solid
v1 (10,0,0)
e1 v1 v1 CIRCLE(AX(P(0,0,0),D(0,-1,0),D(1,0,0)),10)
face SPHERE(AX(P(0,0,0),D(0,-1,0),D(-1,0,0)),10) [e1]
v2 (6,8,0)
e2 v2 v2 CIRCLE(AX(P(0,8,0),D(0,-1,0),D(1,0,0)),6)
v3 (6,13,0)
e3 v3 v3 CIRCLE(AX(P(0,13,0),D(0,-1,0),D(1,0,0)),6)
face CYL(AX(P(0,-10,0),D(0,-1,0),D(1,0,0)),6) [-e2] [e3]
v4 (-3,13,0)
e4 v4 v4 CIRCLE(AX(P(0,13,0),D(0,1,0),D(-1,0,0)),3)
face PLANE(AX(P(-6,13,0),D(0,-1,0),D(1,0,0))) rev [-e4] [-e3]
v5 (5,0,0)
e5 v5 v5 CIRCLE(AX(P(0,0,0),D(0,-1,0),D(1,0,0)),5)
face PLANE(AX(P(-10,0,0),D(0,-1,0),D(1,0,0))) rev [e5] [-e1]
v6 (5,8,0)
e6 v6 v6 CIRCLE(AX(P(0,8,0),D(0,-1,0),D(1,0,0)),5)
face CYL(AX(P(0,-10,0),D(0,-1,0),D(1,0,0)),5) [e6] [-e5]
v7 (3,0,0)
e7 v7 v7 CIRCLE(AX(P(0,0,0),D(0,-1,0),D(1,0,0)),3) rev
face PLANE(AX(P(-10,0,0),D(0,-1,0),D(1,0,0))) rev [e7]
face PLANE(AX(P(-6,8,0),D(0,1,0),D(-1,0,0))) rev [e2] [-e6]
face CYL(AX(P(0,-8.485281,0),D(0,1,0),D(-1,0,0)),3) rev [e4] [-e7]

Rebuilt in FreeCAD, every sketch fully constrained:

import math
import FreeCAD as App
import Part
import Sketcher
Q = App.Units.Quantity

doc = App.newDocument("Part")
body = doc.addObject("PartDesign::Body", "Body")

# Sketch on XY plane
sketch1 = body.newObject("Sketcher::SketchObject", "Sketch")
sketch1.AttachmentSupport = (doc.getObject("XY_Plane"), [""])
sketch1.MapMode = "FlatFace"
sketch1.addGeometry(Part.LineSegment(App.Vector(-5, 0, 0), App.Vector(-10, 0, 0)), False)
sketch1.addGeometry(Part.ArcOfCircle(Part.Circle(App.Vector(0, 0, 0), App.Vector(0, 0, 1), 10), math.radians(180), math.radians(270)), False)
sketch1.addGeometry(Part.LineSegment(App.Vector(0, -10, 0), App.Vector(0, 13, 0)), False)
sketch1.addGeometry(Part.LineSegment(App.Vector(0, 13, 0), App.Vector(-6, 13, 0)), False)
sketch1.addGeometry(Part.LineSegment(App.Vector(-6, 13, 0), App.Vector(-6, 8, 0)), False)
sketch1.addGeometry(Part.LineSegment(App.Vector(-6, 8, 0), App.Vector(-5, 8, 0)), False)
sketch1.addGeometry(Part.LineSegment(App.Vector(-5, 8, 0), App.Vector(-5, 0, 0)), False)
sketch1.addConstraint(Sketcher.Constraint("Coincident", 0, 2, 1, 1))
sketch1.addConstraint(Sketcher.Constraint("Coincident", 1, 2, 2, 1))
sketch1.addConstraint(Sketcher.Constraint("Coincident", 2, 2, 3, 1))
sketch1.addConstraint(Sketcher.Constraint("Coincident", 3, 2, 4, 1))
sketch1.addConstraint(Sketcher.Constraint("Coincident", 4, 2, 5, 1))
sketch1.addConstraint(Sketcher.Constraint("Coincident", 5, 2, 6, 1))
sketch1.addConstraint(Sketcher.Constraint("Coincident", 6, 2, 0, 1))
sketch1.addConstraint(Sketcher.Constraint("Horizontal", 0))
sketch1.addConstraint(Sketcher.Constraint("Vertical", 2))
sketch1.addConstraint(Sketcher.Constraint("Horizontal", 3))
sketch1.addConstraint(Sketcher.Constraint("Vertical", 4))
sketch1.addConstraint(Sketcher.Constraint("Horizontal", 5))
sketch1.addConstraint(Sketcher.Constraint("Vertical", 6))
sketch1.addConstraint(Sketcher.Constraint("Coincident", 1, 3, -1, 1))
sketch1.addConstraint(Sketcher.Constraint("PointOnObject", 0, 2, -1))
sketch1.addConstraint(Sketcher.Constraint("PointOnObject", 1, 2, -2))
sketch1.addConstraint(Sketcher.Constraint("Equal", 0, 4))
sketch1.addConstraint(Sketcher.Constraint("Radius", 1, Q("10 mm")))
sketch1.addConstraint(Sketcher.Constraint("DistanceX", 0, 2, 0, 1, Q("5 mm")))
sketch1.addConstraint(Sketcher.Constraint("DistanceX", 3, 2, 3, 1, Q("6 mm")))
sketch1.addConstraint(Sketcher.Constraint("DistanceY", 2, 1, 2, 2, Q("23 mm")))
revolution = body.newObject("PartDesign::Revolution", "Revolution")
revolution.Profile = sketch1
revolution.ReferenceAxis = (sketch1, ["V_Axis"])
revolution.Angle = 360

# Sketch on XZ plane
sketch2 = body.newObject("Sketcher::SketchObject", "Sketch001")
sketch2.AttachmentSupport = (doc.getObject("XZ_Plane"), [""])
sketch2.MapMode = "FlatFace"
sketch2.AttachmentOffset = App.Placement(App.Vector(0, 0, -13), App.Rotation())
sketch2.addGeometry(Part.Circle(App.Vector(0, 0, 0), App.Vector(0, 0, 1), 3), False)
sketch2.addConstraint(Sketcher.Constraint("Coincident", 0, 3, -1, 1))
sketch2.addConstraint(Sketcher.Constraint("Diameter", 0, Q("6 mm")))
pocket1 = body.newObject("PartDesign::Pocket", "Pocket")
pocket1.Profile = sketch2
pocket1.Length = 13
pocket1.Reversed = True

doc.recompute()
